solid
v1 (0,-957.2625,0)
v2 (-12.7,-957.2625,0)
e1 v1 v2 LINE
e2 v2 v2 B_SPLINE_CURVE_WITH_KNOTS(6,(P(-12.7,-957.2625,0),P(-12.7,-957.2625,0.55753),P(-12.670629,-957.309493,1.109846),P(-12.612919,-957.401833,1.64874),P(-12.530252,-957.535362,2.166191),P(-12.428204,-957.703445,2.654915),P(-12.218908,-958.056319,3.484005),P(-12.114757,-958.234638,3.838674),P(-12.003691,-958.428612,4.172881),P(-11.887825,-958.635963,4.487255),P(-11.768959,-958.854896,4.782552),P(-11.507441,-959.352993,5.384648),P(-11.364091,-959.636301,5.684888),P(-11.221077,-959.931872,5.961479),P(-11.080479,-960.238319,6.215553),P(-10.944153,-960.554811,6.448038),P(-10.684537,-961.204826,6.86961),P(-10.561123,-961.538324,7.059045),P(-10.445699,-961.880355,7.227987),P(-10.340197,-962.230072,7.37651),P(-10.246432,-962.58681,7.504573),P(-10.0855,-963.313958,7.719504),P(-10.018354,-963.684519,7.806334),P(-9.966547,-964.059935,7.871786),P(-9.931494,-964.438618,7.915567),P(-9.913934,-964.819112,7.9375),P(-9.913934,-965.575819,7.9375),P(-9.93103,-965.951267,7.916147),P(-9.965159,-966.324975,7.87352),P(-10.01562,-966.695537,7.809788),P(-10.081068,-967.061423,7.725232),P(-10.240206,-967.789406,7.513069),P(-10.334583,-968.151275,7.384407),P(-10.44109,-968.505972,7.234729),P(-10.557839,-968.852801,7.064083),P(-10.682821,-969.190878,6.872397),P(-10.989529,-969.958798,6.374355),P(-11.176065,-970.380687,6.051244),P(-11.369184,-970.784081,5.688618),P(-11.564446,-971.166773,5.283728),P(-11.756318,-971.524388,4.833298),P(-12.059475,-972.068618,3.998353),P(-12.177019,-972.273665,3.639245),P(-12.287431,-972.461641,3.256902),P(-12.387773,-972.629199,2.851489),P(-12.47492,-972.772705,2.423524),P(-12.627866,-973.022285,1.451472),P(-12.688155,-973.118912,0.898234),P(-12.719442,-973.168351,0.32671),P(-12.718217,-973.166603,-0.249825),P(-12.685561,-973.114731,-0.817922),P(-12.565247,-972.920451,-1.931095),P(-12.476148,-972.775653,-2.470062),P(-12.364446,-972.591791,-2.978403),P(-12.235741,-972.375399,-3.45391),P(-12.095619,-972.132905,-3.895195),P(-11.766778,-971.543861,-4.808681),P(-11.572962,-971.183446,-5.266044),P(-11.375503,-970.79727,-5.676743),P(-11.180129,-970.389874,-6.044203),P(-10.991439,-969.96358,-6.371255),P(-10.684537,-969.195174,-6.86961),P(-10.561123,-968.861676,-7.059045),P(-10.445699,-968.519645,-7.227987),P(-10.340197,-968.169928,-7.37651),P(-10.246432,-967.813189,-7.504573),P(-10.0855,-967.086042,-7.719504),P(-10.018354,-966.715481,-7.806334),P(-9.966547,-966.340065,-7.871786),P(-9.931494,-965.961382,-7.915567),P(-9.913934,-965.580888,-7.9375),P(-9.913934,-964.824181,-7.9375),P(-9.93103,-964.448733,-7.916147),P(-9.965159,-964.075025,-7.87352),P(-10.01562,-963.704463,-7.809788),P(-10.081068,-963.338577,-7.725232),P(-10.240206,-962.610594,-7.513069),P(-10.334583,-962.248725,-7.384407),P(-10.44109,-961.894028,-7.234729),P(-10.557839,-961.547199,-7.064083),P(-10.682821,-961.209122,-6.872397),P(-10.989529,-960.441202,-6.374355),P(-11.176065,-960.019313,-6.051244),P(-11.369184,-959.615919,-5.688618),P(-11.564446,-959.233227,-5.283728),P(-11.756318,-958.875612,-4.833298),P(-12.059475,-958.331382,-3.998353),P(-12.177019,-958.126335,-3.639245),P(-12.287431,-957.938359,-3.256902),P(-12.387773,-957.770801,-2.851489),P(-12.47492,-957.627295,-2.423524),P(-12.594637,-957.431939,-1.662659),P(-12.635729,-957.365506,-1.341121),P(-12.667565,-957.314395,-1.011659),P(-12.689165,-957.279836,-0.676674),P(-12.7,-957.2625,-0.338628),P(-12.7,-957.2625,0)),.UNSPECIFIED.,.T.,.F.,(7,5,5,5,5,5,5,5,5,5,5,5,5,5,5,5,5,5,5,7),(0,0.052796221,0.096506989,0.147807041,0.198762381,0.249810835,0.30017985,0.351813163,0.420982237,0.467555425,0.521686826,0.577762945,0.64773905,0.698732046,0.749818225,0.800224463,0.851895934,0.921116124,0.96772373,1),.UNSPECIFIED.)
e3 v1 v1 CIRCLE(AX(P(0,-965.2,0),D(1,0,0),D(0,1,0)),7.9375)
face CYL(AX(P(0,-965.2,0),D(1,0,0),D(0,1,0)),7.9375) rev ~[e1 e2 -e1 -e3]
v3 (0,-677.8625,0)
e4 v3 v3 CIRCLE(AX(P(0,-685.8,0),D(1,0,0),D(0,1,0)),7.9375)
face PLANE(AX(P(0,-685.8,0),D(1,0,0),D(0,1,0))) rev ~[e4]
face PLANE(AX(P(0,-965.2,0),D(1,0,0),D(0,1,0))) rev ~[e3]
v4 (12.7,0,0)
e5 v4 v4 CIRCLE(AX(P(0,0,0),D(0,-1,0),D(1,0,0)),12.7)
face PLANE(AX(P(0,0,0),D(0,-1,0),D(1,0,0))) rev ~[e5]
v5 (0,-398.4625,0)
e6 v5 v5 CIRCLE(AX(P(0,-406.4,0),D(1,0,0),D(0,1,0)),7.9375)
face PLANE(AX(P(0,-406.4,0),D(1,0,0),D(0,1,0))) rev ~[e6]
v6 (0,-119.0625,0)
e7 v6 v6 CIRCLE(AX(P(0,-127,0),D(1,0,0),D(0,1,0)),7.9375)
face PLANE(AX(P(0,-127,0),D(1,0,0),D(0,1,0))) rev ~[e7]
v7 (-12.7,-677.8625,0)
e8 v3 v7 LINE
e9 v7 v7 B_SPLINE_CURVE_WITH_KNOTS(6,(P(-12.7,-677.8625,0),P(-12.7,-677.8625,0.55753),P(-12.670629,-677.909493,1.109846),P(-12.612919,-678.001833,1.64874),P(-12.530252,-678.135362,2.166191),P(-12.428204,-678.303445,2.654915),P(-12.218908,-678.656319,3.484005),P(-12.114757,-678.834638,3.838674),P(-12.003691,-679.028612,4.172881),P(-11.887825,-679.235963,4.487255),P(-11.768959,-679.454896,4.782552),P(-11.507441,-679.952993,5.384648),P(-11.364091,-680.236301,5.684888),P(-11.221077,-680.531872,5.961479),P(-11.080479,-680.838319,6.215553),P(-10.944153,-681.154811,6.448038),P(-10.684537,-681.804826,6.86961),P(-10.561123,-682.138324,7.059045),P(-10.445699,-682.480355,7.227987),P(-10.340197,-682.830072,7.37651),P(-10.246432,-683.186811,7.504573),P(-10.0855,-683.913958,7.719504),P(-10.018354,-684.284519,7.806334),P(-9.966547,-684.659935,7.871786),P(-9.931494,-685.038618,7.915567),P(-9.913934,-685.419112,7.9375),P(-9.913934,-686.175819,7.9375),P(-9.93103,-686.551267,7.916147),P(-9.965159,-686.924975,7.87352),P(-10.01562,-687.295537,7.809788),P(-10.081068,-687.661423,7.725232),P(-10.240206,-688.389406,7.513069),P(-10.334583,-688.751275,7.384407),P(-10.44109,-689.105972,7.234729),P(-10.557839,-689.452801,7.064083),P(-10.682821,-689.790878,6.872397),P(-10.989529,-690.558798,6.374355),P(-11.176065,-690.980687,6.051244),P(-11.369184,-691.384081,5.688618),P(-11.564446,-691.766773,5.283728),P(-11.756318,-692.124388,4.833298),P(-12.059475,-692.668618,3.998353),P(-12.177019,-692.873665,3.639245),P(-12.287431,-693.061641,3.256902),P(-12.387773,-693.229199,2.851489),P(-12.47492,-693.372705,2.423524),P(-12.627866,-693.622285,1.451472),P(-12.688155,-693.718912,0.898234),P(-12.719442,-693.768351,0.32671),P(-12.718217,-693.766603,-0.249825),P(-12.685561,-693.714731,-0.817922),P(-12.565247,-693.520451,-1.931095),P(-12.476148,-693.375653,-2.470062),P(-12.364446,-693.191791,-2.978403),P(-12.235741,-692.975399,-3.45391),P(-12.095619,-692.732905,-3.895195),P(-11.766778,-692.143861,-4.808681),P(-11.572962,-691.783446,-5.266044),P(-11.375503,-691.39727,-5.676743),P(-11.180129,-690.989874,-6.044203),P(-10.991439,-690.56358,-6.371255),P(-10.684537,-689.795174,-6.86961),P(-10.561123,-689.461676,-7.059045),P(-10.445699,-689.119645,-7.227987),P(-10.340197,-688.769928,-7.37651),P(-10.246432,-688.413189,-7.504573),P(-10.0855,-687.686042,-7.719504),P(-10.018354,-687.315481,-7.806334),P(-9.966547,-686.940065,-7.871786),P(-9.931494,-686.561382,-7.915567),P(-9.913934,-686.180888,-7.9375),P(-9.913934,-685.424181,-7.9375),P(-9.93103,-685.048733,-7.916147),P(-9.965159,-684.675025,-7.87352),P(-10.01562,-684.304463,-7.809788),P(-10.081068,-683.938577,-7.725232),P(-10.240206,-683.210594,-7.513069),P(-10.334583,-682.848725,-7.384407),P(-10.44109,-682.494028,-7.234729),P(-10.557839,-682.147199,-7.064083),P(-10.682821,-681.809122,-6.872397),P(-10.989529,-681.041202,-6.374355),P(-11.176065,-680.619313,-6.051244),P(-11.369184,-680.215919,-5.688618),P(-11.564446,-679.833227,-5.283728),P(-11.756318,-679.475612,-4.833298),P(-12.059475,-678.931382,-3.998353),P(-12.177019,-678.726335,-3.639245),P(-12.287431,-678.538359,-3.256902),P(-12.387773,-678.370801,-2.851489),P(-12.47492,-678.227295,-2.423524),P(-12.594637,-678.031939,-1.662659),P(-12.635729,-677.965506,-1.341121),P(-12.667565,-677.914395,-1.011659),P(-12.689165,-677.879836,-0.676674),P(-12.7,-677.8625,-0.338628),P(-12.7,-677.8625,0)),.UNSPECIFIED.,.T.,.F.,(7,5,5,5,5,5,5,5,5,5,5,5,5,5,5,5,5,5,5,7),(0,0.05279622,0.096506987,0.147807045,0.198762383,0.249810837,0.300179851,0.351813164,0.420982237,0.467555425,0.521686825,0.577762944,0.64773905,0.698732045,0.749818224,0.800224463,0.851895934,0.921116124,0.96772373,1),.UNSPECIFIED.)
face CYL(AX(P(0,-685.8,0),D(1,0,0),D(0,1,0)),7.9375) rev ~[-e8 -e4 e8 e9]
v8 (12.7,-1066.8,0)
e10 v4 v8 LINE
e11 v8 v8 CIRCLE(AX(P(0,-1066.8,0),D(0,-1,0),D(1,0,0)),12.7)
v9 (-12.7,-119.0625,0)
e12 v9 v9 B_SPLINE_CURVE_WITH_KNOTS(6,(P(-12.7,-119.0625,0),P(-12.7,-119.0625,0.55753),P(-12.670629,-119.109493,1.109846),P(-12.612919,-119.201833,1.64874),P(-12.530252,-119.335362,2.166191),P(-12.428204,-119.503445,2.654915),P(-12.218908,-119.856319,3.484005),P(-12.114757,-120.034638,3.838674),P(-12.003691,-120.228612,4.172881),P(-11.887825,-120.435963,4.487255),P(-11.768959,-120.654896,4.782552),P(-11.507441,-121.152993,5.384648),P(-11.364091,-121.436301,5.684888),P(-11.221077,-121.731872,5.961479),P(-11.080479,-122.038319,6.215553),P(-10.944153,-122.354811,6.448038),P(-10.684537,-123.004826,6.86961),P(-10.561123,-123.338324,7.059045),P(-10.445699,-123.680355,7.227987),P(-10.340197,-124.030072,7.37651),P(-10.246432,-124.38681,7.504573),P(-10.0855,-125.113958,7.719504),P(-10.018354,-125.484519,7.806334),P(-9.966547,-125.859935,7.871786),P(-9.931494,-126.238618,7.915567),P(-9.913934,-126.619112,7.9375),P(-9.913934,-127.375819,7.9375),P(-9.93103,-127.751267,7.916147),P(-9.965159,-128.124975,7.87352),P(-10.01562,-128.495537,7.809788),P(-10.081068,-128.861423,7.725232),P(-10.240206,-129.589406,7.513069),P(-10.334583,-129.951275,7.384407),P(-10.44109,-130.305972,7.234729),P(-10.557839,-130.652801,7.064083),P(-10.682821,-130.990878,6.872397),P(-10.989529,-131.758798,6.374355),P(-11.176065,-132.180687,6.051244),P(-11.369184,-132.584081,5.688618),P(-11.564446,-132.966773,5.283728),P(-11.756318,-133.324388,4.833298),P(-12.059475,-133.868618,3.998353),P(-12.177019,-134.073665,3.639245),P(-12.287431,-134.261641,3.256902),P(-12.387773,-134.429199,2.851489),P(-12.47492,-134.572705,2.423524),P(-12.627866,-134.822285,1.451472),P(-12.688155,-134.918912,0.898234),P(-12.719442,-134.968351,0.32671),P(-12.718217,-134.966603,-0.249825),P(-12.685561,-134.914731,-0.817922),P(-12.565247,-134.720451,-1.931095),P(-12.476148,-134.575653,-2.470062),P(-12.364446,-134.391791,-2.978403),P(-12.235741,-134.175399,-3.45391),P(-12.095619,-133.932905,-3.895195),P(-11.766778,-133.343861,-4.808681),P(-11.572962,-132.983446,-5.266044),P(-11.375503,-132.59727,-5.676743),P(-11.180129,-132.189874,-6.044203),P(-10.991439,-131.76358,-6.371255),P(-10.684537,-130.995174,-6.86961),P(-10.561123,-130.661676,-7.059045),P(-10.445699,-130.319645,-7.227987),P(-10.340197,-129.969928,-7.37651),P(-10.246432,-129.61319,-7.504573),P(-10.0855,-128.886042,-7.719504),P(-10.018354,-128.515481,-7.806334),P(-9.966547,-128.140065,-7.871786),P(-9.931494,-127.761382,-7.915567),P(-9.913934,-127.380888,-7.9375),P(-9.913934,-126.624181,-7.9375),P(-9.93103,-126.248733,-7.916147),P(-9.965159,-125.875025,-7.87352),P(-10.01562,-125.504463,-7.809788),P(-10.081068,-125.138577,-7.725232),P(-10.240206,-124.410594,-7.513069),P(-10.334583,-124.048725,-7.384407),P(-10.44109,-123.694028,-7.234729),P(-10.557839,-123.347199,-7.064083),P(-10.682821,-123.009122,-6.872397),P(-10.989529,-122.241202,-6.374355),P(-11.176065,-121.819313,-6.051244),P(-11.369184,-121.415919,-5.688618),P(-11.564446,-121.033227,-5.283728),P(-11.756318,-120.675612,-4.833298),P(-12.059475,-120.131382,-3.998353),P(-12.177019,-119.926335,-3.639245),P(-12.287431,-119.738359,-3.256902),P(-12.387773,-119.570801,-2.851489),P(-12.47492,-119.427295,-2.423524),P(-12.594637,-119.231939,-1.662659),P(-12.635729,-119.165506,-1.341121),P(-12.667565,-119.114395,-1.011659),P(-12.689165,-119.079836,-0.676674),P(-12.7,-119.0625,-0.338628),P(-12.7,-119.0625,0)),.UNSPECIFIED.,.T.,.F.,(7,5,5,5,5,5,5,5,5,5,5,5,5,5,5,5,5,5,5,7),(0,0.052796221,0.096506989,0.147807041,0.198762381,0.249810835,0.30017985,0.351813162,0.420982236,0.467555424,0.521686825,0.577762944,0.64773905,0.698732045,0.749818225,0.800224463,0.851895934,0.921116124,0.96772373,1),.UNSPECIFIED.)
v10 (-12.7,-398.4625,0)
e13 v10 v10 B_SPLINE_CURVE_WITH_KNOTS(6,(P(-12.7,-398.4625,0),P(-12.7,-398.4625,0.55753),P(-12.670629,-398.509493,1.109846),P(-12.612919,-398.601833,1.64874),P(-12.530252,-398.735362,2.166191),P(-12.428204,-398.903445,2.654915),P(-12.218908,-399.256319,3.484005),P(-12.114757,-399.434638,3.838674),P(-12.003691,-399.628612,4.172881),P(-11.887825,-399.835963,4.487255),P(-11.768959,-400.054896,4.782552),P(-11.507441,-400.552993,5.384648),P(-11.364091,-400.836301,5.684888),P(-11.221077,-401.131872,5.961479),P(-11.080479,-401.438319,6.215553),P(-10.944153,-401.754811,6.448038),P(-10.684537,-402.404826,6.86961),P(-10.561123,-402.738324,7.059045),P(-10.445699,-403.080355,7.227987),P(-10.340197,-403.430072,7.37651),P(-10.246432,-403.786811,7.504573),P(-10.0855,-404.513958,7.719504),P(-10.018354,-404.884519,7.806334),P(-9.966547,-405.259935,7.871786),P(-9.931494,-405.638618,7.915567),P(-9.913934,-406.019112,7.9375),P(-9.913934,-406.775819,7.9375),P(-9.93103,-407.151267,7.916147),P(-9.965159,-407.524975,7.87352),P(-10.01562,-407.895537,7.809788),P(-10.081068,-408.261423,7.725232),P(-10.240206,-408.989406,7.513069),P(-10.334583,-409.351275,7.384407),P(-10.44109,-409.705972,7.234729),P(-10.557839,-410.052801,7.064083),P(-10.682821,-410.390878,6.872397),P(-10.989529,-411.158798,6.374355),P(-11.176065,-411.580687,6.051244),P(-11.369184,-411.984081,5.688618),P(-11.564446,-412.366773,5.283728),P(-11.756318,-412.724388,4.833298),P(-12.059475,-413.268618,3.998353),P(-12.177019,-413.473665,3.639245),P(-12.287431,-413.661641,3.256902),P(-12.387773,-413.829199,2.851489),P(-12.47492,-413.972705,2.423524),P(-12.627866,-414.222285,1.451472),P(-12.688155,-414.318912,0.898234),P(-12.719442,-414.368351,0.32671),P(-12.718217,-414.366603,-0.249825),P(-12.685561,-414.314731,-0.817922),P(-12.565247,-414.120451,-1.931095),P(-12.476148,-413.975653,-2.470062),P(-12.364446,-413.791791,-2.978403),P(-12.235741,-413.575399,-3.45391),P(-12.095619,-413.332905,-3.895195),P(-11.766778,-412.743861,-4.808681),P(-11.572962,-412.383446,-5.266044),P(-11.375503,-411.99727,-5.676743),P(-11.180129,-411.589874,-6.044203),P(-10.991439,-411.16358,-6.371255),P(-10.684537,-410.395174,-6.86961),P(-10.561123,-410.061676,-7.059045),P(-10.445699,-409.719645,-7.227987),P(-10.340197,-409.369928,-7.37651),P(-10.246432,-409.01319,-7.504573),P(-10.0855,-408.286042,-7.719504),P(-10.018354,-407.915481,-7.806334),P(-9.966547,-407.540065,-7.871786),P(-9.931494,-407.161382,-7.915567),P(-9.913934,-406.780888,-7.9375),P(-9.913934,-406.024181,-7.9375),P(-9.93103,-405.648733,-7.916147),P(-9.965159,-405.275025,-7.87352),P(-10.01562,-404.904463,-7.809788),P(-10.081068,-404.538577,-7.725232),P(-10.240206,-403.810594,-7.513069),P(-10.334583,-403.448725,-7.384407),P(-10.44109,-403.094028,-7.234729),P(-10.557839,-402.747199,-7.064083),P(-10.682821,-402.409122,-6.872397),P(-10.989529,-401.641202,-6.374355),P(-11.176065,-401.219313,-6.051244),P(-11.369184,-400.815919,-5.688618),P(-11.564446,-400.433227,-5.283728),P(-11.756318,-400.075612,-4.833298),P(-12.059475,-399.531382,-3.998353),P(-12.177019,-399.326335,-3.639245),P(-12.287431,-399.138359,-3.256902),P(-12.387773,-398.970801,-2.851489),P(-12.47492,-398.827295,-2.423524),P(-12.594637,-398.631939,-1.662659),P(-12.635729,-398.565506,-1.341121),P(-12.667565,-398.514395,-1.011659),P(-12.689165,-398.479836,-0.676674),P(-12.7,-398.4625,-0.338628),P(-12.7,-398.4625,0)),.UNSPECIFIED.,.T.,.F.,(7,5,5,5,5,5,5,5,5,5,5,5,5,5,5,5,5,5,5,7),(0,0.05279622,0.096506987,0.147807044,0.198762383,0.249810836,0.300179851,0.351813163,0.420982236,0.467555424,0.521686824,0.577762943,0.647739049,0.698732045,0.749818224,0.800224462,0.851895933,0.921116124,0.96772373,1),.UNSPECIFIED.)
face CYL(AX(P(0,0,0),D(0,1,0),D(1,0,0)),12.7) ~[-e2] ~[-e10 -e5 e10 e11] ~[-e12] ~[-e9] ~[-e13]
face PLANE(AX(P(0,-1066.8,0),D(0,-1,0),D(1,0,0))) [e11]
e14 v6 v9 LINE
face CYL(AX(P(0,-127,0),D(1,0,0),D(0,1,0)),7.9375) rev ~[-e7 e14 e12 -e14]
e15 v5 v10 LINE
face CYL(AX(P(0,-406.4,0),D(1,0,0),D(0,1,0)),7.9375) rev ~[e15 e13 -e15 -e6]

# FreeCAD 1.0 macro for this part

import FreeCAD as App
import Part
import Sketcher
Q = App.Units.Quantity

doc = App.newDocument("Part")
body = doc.addObject("PartDesign::Body", "Body")

# Sketch on XZ plane
sketch1 = doc.addObject("Sketcher::SketchObject", "Sketch")
body.addObject(sketch1)
sketch1.AttachmentSupport = (doc.XZ_Plane, [""])
sketch1.MapMode = "FlatFace"
sketch1.addGeometry(Part.Circle(App.Vector(0, 0, 0), App.Vector(0, 0, 1), 13), False)
sketch1.addConstraint(Sketcher.Constraint("Coincident", 0, 3, -1, 1))
sketch1.addConstraint(Sketcher.Constraint("Diameter", 0, Q("1 in")))
pad1 = doc.addObject("PartDesign::Pad", "Pad")
body.addObject(pad1)
pad1.Profile = sketch1
pad1.Length = Q("42 in")

# Sketch on YZ plane
sketch2 = doc.addObject("Sketcher::SketchObject", "Sketch001")
body.addObject(sketch2)
sketch2.AttachmentSupport = (doc.YZ_Plane, [""])
sketch2.MapMode = "FlatFace"
sketch2.addGeometry(Part.Circle(App.Vector(-406, 0, 0), App.Vector(0, 0, 1), 8), False)
sketch2.addGeometry(Part.Circle(App.Vector(-686, 0, 0), App.Vector(0, 0, 1), 8), False)
sketch2.addGeometry(Part.Circle(App.Vector(-965, 0, 0), App.Vector(0, 0, 1), 8), False)
sketch2.addGeometry(Part.Circle(App.Vector(-127, 0, 0), App.Vector(0, 0, 1), 8), False)
sketch2.addConstraint(Sketcher.Constraint("Equal", 0, 1))
sketch2.addConstraint(Sketcher.Constraint("Equal", 1, 2))
sketch2.addConstraint(Sketcher.Constraint("Equal", 2, 3))
sketch2.addConstraint(Sketcher.Constraint("PointOnObject", 0, 3, -1))
sketch2.addConstraint(Sketcher.Constraint("PointOnObject", 1, 3, -1))
sketch2.addConstraint(Sketcher.Constraint("PointOnObject", 2, 3, -1))
sketch2.addConstraint(Sketcher.Constraint("PointOnObject", 3, 3, -1))
sketch2.addConstraint(Sketcher.Constraint("Diameter", 0, Q("0.625 in")))
sketch2.addConstraint(Sketcher.Constraint("DistanceX", 0, 3, -1, 1, Q("16 in")))
sketch2.addConstraint(Sketcher.Constraint("DistanceX", 1, 3, -1, 1, Q("27 in")))
sketch2.addConstraint(Sketcher.Constraint("DistanceX", 2, 3, -1, 1, Q("38 in")))
sketch2.addConstraint(Sketcher.Constraint("DistanceX", 3, 3, -1, 1, Q("5 in")))
pocket1 = doc.addObject("PartDesign::Pocket", "Pocket")
body.addObject(pocket1)
pocket1.Profile = sketch2
pocket1.Length = Q("1 in")

doc.recompute()
